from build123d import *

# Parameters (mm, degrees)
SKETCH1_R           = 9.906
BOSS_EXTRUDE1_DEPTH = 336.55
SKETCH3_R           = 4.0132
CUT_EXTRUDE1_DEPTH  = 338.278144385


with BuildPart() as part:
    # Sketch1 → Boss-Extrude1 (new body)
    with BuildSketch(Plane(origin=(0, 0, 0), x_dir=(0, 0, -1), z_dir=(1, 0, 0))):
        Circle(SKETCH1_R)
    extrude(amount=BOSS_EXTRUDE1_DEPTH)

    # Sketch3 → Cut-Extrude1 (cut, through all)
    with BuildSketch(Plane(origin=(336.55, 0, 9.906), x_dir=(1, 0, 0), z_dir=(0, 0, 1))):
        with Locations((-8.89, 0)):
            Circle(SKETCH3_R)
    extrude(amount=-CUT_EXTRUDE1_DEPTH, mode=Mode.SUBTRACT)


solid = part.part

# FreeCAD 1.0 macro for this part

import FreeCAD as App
import Part
import Sketcher
from FreeCAD import Vector
Q = App.Units.Quantity

doc = App.newDocument("Part")
body = doc.addObject("PartDesign::Body", "Body")

# Sketch on YZ plane
sketch1 = doc.addObject("Sketcher::SketchObject", "Sketch")
body.addObject(sketch1)
sketch1.AttachmentSupport = (doc.YZ_Plane, [""])
sketch1.MapMode = "FlatFace"
sketch1.addGeometry(Part.Circle(Vector(0, 0, 0), Vector(0, 0, 1), 10), False)
sketch1.addConstraint([
    Sketcher.Constraint("Coincident", 0, 3, -1, 1),
    Sketcher.Constraint("Diameter", 0, Q("0.78 in")),
])
pad1 = doc.addObject("PartDesign::Pad", "Pad")
body.addObject(pad1)
pad1.Profile = sketch1
pad1.Length = Q("13.25 in")

# Sketch on XY plane
sketch2 = doc.addObject("Sketcher::SketchObject", "Sketch001")
body.addObject(sketch2)
sketch2.AttachmentSupport = (doc.XY_Plane, [""])
sketch2.MapMode = "FlatFace"
sketch2.AttachmentOffset = App.Placement(Vector(0, 0, 0.39 * 25.4), App.Rotation())
sketch2.addGeometry(Part.Circle(Vector(327.7, 0, 0), Vector(0, 0, 1), 4), False)
sketch2.addConstraint([
    Sketcher.Constraint("PointOnObject", 0, 3, -1),
    Sketcher.Constraint("Diameter", 0, Q("0.316 in")),
    Sketcher.Constraint("DistanceX", -1, 1, 0, 3, Q("12.9 in")),
])
pocket1 = doc.addObject("PartDesign::Pocket", "Pocket")
body.addObject(pocket1)
pocket1.Profile = sketch2
pocket1.Type = "ThroughAll"

doc.recompute()
